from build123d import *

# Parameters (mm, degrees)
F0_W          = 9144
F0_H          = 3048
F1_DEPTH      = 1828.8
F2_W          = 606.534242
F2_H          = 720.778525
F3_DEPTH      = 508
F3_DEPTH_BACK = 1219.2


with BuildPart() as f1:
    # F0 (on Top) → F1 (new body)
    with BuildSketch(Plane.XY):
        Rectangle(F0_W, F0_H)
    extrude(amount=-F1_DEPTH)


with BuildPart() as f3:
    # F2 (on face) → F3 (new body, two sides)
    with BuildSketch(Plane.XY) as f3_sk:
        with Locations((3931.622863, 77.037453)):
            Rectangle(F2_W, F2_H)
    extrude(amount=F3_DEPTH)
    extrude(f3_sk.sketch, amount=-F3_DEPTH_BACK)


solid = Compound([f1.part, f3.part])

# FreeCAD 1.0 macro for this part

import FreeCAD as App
import Part
import Sketcher
Q = App.Units.Quantity

doc = App.newDocument("Part")
params = doc.addObject("Spreadsheet::Sheet", "Params")
for row, (alias, value) in enumerate([
    ("sketch1_width", "360 in"),
    ("sketch1_height", "120 in"),
    ("pad1_length", "72 in"),
    ("pad2_length", "20 in"),
    ("pad2_length2", "48 in"),
], start=1):
    params.set(f"A{row}", alias)
    params.set(f"B{row}", "=" + value)
    params.setAlias(f"B{row}", alias)

body = doc.addObject("PartDesign::Body", "Body")

sketch1 = doc.addObject("Sketcher::SketchObject", "Sketch")
body.addObject(sketch1)
sketch1.AttachmentSupport = (doc.XY_Plane, [""])
sketch1.MapMode = "FlatFace"
sketch1.addGeometry(Part.LineSegment(App.Vector(-4572, 1524, 0), App.Vector(-4572, -1524, 0)), False)
sketch1.addGeometry(Part.LineSegment(App.Vector(-4572, -1524, 0), App.Vector(4572, -1524, 0)), False)
sketch1.addGeometry(Part.LineSegment(App.Vector(4572, -1524, 0), App.Vector(4572, 1524, 0)), False)
sketch1.addGeometry(Part.LineSegment(App.Vector(4572, 1524, 0), App.Vector(-4572, 1524, 0)), False)
sketch1.addConstraint(Sketcher.Constraint("Coincident", 0, 2, 1, 1))
sketch1.addConstraint(Sketcher.Constraint("Coincident", 1, 2, 2, 1))
sketch1.addConstraint(Sketcher.Constraint("Coincident", 2, 2, 3, 1))
sketch1.addConstraint(Sketcher.Constraint("Coincident", 3, 2, 0, 1))
sketch1.addConstraint(Sketcher.Constraint("Vertical", 0))
sketch1.addConstraint(Sketcher.Constraint("Horizontal", 1))
sketch1.addConstraint(Sketcher.Constraint("Vertical", 2))
sketch1.addConstraint(Sketcher.Constraint("Horizontal", 3))
sketch1.addConstraint(Sketcher.Constraint("Symmetric", 0, 2, 2, 2, -1, 1))
sketch1.addConstraint(Sketcher.Constraint("DistanceX", 1, 1, 1, 2, Q("360 in")))
sketch1.addConstraint(Sketcher.Constraint("DistanceY", 0, 2, 0, 1, Q("120 in")))
sketch1.setExpression("Constraints[9]", "Params.sketch1_width")
sketch1.setExpression("Constraints[10]", "Params.sketch1_height")
pad1 = doc.addObject("PartDesign::Pad", "Pad")
body.addObject(pad1)
pad1.Profile = sketch1
pad1.setExpression("Length", "Params.pad1_length")
pad1.Reversed = True
body2 = doc.addObject("PartDesign::Body", "Body001")

sketch2 = doc.addObject("Sketcher::SketchObject", "Sketch001")
body2.addObject(sketch2)
sketch2.AttachmentSupport = (doc.getObject("XY_Plane001"), [""])
sketch2.MapMode = "FlatFace"
sketch2.addGeometry(Part.LineSegment(App.Vector(3628, 437, 0), App.Vector(3628, -283, 0)), False)
sketch2.addGeometry(Part.LineSegment(App.Vector(3628, -283, 0), App.Vector(4235, -283, 0)), False)
sketch2.addGeometry(Part.LineSegment(App.Vector(4235, -283, 0), App.Vector(4235, 437, 0)), False)
sketch2.addGeometry(Part.LineSegment(App.Vector(4235, 437, 0), App.Vector(3628, 437, 0)), False)
sketch2.addConstraint(Sketcher.Constraint("Coincident", 0, 2, 1, 1))
sketch2.addConstraint(Sketcher.Constraint("Coincident", 1, 2, 2, 1))
sketch2.addConstraint(Sketcher.Constraint("Coincident", 2, 2, 3, 1))
sketch2.addConstraint(Sketcher.Constraint("Coincident", 3, 2, 0, 1))
sketch2.addConstraint(Sketcher.Constraint("Vertical", 0))
sketch2.addConstraint(Sketcher.Constraint("Horizontal", 1))
sketch2.addConstraint(Sketcher.Constraint("Vertical", 2))
sketch2.addConstraint(Sketcher.Constraint("Horizontal", 3))
sketch2.addConstraint(Sketcher.Constraint("DistanceX", 1, 1, 1, 2, Q("606.534242 mm")))
sketch2.addConstraint(Sketcher.Constraint("DistanceY", 0, 2, 0, 1, Q("720.778525 mm")))
sketch2.addConstraint(Sketcher.Constraint("DistanceY", 0, 2, -1, 1, Q("283.35181 mm")))
sketch2.addConstraint(Sketcher.Constraint("DistanceX", -1, 1, 0, 2, Q("3628.355742 mm")))
pad2 = doc.addObject("PartDesign::Pad", "Pad001")
body2.addObject(pad2)
pad2.Profile = sketch2
pad2.Type = "TwoLengths"
pad2.setExpression("Length", "Params.pad2_length")
pad2.setExpression("Length2", "Params.pad2_length2")

doc.recompute()
